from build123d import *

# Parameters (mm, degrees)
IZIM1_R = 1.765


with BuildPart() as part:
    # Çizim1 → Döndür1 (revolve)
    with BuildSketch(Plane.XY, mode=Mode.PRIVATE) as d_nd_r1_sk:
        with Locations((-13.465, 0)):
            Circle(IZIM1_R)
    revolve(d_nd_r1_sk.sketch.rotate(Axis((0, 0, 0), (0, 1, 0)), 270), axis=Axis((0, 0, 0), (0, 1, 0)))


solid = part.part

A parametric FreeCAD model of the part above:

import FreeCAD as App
import Part
import Sketcher

V = App.Vector

doc = App.newDocument("Part")
body = doc.addObject("PartDesign::Body", "Body")

# Sketch on XY plane
sketch1 = body.newObject("Sketcher::SketchObject", "Sketch")
sketch1.AttachmentSupport = (doc.getObject("XY_Plane"), [""])
sketch1.MapMode = "FlatFace"
sketch1.addGeometry(Part.Circle(V(-13.465, 0, 0), V(0, 0, 1), 1.765), False)
sketch1.addConstraint([
    Sketcher.Constraint("PointOnObject", 0, 3, -1),
    Sketcher.Constraint("Diameter", 0, 3.53),
    Sketcher.Constraint("DistanceX", 0, 3, -1, 1, 13.465),
])
revolution = body.newObject("PartDesign::Revolution", "Revolution")
revolution.Profile = sketch1
revolution.ReferenceAxis = (sketch1, ["V_Axis"])
revolution.Angle = 360

doc.recompute()
